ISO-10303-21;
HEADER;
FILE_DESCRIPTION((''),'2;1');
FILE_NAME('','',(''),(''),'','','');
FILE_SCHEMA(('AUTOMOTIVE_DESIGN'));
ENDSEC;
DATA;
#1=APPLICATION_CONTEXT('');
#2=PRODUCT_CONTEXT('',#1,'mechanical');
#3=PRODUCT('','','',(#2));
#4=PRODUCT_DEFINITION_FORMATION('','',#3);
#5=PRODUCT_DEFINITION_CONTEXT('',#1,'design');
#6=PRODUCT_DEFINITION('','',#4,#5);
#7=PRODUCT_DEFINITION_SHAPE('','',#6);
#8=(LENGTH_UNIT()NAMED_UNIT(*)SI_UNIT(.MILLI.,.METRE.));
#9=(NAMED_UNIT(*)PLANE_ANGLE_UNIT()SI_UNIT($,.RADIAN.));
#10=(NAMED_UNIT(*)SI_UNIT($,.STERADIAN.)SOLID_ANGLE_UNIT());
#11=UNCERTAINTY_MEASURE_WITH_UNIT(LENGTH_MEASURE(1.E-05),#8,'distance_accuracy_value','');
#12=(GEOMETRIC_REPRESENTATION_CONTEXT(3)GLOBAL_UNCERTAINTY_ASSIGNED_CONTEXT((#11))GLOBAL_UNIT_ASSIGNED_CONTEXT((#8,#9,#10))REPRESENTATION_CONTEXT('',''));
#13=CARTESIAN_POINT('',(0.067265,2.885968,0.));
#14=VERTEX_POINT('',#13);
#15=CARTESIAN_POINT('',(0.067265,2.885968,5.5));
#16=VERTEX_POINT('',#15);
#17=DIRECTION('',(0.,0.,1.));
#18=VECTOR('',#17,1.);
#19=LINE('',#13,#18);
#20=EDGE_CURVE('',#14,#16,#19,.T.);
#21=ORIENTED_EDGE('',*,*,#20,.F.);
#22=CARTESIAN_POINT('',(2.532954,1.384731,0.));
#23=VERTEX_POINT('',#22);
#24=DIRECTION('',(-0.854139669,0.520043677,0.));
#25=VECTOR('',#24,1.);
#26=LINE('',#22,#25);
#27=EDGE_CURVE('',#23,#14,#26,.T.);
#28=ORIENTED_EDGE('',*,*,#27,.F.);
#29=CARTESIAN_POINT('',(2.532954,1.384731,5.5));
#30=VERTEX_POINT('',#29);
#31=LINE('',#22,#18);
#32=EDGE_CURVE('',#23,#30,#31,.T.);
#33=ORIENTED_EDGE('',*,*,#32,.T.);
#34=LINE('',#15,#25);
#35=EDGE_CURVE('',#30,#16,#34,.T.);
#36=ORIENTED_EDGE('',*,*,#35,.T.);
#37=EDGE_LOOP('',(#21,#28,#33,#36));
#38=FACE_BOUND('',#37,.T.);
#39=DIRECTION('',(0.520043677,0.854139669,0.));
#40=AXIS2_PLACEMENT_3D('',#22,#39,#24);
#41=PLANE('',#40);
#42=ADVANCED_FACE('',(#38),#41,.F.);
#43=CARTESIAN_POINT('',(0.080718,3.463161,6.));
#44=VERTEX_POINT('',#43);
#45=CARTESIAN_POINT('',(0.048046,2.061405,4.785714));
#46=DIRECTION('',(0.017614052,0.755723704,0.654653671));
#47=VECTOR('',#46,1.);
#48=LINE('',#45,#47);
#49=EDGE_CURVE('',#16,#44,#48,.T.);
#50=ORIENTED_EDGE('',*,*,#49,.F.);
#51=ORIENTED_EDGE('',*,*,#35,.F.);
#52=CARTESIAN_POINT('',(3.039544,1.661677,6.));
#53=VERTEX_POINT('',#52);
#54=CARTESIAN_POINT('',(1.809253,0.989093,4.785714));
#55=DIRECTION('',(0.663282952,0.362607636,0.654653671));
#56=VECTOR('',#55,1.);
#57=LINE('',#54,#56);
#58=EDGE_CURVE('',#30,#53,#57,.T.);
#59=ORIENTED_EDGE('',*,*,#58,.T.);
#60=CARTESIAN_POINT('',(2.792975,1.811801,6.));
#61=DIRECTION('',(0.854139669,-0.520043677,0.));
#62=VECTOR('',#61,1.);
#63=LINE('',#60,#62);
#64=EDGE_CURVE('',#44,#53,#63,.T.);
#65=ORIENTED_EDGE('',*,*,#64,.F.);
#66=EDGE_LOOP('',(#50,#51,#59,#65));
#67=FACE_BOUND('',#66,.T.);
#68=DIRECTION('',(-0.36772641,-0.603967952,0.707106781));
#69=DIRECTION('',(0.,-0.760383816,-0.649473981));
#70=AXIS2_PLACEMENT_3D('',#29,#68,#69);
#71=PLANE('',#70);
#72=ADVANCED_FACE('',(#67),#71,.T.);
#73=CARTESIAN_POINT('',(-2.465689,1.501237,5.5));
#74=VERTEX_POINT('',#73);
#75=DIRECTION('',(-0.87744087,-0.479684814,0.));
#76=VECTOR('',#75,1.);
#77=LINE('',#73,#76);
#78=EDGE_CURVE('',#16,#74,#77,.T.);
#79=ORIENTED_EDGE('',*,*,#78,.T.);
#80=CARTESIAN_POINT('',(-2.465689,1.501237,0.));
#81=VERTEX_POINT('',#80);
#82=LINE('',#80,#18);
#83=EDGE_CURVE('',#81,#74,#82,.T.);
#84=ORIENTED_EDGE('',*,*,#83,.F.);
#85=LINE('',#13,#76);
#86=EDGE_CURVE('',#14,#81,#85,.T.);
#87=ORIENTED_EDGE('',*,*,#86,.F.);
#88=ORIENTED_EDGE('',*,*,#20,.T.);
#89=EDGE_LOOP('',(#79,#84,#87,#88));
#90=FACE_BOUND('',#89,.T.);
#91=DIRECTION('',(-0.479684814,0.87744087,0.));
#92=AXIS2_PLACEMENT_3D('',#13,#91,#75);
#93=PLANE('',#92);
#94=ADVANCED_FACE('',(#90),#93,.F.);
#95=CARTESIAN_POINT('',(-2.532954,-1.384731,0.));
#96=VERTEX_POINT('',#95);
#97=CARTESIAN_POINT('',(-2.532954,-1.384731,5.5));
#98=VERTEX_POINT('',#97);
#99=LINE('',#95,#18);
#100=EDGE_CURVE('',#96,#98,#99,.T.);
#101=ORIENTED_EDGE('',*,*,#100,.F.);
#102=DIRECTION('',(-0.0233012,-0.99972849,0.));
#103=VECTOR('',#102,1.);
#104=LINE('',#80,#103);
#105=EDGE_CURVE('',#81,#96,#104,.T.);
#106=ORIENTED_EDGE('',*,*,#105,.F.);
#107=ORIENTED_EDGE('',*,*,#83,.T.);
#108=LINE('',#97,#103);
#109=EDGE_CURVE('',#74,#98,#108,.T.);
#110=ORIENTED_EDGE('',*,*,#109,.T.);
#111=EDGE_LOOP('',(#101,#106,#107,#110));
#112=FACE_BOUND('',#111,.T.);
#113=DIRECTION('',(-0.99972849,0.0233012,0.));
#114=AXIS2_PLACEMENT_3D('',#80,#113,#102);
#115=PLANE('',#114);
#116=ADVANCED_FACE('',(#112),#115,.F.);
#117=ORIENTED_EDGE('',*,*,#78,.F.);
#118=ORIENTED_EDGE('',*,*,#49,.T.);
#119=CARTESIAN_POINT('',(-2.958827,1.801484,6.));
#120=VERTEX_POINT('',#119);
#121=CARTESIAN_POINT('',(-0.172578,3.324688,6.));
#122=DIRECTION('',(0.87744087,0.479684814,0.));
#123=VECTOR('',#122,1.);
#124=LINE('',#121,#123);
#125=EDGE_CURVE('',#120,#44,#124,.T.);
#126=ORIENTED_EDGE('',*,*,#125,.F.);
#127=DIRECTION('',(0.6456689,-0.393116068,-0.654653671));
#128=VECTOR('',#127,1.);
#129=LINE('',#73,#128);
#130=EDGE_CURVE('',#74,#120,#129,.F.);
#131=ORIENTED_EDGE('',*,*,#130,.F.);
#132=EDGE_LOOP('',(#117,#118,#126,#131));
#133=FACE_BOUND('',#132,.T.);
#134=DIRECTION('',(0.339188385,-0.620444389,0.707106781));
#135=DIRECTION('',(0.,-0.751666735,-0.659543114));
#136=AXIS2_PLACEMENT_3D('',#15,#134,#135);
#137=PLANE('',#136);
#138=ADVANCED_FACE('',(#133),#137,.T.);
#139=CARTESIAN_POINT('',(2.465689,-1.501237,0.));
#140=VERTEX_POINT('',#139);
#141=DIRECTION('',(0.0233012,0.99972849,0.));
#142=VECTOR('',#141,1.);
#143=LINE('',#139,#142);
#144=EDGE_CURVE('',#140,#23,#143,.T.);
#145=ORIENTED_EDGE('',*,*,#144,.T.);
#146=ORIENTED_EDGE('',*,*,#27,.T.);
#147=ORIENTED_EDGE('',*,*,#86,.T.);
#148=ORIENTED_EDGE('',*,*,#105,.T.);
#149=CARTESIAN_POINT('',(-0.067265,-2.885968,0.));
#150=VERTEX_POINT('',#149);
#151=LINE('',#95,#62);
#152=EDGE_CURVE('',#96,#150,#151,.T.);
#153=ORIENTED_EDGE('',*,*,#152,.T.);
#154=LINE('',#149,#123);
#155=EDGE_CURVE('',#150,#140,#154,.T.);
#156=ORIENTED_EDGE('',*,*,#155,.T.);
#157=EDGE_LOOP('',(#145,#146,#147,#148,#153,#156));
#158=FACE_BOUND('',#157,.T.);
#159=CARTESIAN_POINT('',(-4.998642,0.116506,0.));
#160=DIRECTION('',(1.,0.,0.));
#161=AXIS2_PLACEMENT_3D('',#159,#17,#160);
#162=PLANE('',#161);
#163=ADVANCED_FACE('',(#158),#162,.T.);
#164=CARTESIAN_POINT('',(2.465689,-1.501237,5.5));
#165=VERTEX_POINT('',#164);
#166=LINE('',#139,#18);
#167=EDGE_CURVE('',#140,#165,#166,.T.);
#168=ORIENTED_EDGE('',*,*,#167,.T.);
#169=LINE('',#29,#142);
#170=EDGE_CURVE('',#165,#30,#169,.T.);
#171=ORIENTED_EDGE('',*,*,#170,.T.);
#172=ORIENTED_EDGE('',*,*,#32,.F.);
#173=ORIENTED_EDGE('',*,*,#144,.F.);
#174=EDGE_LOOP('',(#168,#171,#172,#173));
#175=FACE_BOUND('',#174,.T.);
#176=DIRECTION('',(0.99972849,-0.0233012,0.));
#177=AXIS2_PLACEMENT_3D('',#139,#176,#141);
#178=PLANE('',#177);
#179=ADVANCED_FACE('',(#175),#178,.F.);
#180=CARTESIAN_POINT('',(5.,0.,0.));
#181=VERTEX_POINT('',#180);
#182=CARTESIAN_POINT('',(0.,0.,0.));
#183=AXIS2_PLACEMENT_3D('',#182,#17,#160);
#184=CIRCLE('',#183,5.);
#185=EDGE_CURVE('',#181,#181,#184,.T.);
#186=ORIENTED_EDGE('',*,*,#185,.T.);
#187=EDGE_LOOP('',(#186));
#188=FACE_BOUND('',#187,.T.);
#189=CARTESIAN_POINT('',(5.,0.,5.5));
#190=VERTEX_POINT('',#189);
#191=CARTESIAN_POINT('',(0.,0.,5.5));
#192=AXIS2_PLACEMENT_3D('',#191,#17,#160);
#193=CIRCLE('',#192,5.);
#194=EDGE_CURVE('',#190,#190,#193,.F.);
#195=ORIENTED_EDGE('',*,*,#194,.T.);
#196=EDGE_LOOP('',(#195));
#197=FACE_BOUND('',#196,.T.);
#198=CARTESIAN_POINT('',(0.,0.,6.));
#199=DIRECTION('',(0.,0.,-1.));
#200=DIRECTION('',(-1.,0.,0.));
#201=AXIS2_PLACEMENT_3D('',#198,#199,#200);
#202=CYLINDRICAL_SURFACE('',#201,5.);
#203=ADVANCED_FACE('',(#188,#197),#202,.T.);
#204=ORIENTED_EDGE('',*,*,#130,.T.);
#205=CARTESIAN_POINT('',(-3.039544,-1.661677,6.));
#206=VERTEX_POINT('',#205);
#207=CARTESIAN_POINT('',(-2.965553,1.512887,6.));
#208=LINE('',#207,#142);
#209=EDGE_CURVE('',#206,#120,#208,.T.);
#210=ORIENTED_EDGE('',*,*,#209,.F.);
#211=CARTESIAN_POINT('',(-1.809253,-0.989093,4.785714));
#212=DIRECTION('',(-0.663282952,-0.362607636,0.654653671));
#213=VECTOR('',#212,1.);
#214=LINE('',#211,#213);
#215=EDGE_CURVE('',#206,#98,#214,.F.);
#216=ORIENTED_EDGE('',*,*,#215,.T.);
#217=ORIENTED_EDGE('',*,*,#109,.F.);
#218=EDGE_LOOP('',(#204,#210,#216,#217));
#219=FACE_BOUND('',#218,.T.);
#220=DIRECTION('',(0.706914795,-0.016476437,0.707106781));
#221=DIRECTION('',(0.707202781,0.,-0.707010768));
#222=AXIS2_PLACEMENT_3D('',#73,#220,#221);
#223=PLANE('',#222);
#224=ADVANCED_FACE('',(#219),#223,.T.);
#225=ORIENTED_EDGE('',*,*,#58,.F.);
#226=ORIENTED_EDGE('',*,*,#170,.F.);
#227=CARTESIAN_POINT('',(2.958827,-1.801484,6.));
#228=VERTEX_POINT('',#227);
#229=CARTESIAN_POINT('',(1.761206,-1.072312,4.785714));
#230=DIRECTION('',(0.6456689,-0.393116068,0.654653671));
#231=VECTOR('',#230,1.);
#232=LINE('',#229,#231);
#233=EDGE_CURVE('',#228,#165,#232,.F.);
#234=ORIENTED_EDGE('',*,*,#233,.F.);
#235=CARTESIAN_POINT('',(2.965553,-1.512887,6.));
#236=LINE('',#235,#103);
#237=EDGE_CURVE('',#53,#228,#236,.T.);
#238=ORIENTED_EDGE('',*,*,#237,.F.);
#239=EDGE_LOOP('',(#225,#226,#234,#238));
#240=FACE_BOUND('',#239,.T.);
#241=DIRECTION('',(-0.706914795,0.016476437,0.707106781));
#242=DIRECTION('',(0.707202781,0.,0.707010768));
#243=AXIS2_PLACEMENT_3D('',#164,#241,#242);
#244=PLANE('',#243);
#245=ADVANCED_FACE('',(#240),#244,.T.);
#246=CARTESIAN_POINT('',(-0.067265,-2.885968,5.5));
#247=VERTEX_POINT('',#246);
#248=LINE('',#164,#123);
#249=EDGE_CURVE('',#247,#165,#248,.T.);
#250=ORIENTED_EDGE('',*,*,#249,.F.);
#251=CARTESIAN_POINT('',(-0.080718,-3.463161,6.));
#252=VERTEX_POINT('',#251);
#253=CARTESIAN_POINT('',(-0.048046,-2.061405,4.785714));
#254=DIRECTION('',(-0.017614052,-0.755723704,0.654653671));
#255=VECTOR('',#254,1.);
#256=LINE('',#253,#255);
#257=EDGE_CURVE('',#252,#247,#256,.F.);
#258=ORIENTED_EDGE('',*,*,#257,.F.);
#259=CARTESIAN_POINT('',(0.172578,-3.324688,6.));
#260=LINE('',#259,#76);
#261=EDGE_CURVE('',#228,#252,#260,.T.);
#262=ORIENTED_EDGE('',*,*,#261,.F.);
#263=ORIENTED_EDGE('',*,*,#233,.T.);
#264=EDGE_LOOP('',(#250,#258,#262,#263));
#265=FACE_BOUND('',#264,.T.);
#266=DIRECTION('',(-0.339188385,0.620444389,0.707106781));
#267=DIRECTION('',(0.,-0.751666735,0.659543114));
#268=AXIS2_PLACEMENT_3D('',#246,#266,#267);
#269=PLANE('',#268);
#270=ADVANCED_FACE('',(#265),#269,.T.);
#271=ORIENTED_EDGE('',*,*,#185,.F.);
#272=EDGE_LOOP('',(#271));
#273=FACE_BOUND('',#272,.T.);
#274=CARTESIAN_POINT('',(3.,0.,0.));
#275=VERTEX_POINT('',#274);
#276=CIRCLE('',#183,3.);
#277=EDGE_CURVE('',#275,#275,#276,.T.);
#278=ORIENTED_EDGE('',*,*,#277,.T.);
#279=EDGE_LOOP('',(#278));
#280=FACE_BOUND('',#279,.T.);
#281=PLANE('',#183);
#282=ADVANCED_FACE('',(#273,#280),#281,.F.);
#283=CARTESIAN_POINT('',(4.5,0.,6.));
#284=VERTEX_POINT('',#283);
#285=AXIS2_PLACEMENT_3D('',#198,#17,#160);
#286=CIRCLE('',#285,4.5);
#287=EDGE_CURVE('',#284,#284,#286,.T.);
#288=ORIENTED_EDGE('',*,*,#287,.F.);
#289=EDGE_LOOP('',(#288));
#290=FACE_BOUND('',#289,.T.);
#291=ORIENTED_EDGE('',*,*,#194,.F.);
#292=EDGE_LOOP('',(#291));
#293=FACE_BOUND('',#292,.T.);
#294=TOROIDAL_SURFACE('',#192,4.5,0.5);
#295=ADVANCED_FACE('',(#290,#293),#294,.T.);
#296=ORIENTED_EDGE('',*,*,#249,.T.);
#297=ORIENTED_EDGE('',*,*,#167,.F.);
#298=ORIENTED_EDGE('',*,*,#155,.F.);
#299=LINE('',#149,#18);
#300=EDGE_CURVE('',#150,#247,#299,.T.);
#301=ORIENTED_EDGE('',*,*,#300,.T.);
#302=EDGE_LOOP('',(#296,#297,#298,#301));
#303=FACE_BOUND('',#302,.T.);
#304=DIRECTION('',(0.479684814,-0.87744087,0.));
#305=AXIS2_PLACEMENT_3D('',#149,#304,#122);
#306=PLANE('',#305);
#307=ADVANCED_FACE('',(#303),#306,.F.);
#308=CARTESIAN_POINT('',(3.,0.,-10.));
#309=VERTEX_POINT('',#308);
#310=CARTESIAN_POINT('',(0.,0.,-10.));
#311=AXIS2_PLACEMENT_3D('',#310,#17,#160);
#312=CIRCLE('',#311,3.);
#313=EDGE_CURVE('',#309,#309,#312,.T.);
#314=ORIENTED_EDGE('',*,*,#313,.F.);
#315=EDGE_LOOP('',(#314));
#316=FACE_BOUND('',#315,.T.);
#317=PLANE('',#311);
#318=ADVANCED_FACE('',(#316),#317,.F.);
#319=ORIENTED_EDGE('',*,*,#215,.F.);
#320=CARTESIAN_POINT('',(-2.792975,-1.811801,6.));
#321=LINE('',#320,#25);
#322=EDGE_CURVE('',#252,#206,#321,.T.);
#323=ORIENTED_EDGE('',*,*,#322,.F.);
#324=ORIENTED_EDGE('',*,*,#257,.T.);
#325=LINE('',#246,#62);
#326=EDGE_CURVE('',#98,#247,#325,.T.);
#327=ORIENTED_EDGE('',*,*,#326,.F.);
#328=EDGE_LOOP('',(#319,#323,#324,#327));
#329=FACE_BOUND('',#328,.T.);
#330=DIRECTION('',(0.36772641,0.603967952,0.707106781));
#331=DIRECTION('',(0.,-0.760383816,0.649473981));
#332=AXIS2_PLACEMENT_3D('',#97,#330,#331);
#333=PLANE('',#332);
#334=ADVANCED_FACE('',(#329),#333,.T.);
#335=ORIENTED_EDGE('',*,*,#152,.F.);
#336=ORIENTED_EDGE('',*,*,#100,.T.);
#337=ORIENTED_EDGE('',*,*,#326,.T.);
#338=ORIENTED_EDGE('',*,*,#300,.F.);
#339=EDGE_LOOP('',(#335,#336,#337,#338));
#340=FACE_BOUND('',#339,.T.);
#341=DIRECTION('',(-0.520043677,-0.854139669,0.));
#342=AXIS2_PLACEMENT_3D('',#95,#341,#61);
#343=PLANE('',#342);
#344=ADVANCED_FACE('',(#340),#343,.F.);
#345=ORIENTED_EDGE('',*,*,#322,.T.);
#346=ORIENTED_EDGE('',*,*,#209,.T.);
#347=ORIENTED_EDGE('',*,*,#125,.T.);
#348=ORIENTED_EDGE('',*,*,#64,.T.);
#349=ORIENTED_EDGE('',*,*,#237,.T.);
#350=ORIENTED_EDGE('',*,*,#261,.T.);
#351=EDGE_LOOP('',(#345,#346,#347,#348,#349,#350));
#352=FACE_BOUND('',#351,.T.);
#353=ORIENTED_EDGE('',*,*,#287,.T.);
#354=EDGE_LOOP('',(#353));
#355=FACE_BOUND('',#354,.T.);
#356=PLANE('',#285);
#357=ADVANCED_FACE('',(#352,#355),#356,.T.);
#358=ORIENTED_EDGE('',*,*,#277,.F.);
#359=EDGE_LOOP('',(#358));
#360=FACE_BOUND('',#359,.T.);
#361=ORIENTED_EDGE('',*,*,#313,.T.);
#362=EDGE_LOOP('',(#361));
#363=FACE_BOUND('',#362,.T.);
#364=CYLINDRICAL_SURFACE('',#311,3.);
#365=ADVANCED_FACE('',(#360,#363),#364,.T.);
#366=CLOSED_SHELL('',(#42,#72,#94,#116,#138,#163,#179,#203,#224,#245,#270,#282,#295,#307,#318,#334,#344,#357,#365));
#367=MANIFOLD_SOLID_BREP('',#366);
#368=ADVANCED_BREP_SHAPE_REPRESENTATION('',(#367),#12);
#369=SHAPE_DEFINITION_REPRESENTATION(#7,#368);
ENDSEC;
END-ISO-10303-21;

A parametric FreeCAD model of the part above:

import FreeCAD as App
import Part
import Sketcher


def edges_at(feature, points):
    """Names of the edges that pass closest to the given points."""
    edges = feature.Shape.Edges
    near = lambda p: min(range(len(edges)), key=lambda i: edges[i].distToShape(Part.Vertex(*p))[0])
    return sorted({f"Edge{near(p) + 1}" for p in points})

doc = App.newDocument("Part")
body = doc.addObject("PartDesign::Body", "Body")

sketch1 = body.newObject("Sketcher::SketchObject", "Sketch")
sketch1.AttachmentSupport = (doc.getObject("XY_Plane"), [""])
sketch1.MapMode = "FlatFace"
sketch1.addGeometry(Part.Circle(App.Vector(0, 0, 0), App.Vector(0, 0, 1), 3), False)
sketch1.addConstraint([
    Sketcher.Constraint("Coincident", 0, 3, -1, 1),
    Sketcher.Constraint("Diameter", 0, 6.0),
])
pad1 = body.newObject("PartDesign::Pad", "Pad")
pad1.Profile = sketch1
pad1.Length = 10
pad1.Reversed = True

sketch2 = body.newObject("Sketcher::SketchObject", "Sketch001")
sketch2.AttachmentSupport = (doc.getObject("XY_Plane"), [""])
sketch2.MapMode = "FlatFace"
sketch2.addGeometry(Part.Circle(App.Vector(0, 0, 0), App.Vector(0, 0, 1), 5), False)
sketch2.addConstraint([
    Sketcher.Constraint("Coincident", 0, 3, -1, 1),
    Sketcher.Constraint("Diameter", 0, 10.0),
])
pad2 = body.newObject("PartDesign::Pad", "Pad001")
pad2.Profile = sketch2
pad2.Length = 6

sketch3 = body.newObject("Sketcher::SketchObject", "Sketch002")
sketch3.AttachmentSupport = (doc.getObject("XY_Plane"), [""])
sketch3.MapMode = "FlatFace"
sketch3.AttachmentOffset = App.Placement(App.Vector(0, 0, 6), App.Rotation())
sketch3.addGeometry([
    Part.LineSegment(App.Vector(-2.5, 1.5, 0), App.Vector(-2.5, -1.4, 0)),
    Part.LineSegment(App.Vector(-2.5, -1.4, 0), App.Vector(-0.1, -2.9, 0)),
    Part.LineSegment(App.Vector(-0.1, -2.9, 0), App.Vector(2.5, -1.5, 0)),
    Part.LineSegment(App.Vector(2.5, -1.5, 0), App.Vector(2.5, 1.4, 0)),
    Part.LineSegment(App.Vector(2.5, 1.4, 0), App.Vector(0.1, 2.9, 0)),
    Part.LineSegment(App.Vector(0.1, 2.9, 0), App.Vector(-2.5, 1.5, 0)),
], False)
sketch3.addConstraint([
    Sketcher.Constraint("Coincident", 0, 2, 1, 1),
    Sketcher.Constraint("Coincident", 1, 2, 2, 1),
    Sketcher.Constraint("Coincident", 2, 2, 3, 1),
    Sketcher.Constraint("Coincident", 3, 2, 4, 1),
    Sketcher.Constraint("Coincident", 4, 2, 5, 1),
    Sketcher.Constraint("Coincident", 5, 2, 0, 1),
    Sketcher.Constraint("Symmetric", 0, 2, 3, 2, -1, 1),
    Sketcher.Constraint("Symmetric", 1, 2, 4, 2, -1, 1),
    Sketcher.Constraint("Symmetric", 2, 2, 5, 2, -1, 1),
    Sketcher.Constraint("Equal", 0, 1),
    Sketcher.Constraint("Equal", 1, 2),
    Sketcher.Constraint("DistanceY", 1, 2, 3, 2, 4.270698),
    Sketcher.Constraint("Distance", 0, 2.886751),
    Sketcher.Constraint("DistanceY", 0, 2, -1, 1, 1.384731),
    Sketcher.Constraint("DistanceX", -1, 1, 2, 2, 2.465689),
])
pocket1 = body.newObject("PartDesign::Pocket", "Pocket")
pocket1.Profile = sketch3
pocket1.Length = 6
doc.recompute()

fillet = body.newObject("PartDesign::Fillet", "Fillet")
fillet.Base = (pocket1, edges_at(pocket1, [(-5, 0, 6)]))
fillet.Radius = 0.5
doc.recompute()

chamfer = body.newObject("PartDesign::Chamfer", "Chamfer")
chamfer.Base = (fillet, edges_at(fillet, [
    (-1.199, 2.194, 6),
    (-2.499, 0.058, 6),
    (-1.3, -2.135, 6),
    (1.199, -2.194, 6),
    (2.499, -0.058, 6),
    (1.3, 2.135, 6),
]))
chamfer.Size = 0.5

doc.recompute()
